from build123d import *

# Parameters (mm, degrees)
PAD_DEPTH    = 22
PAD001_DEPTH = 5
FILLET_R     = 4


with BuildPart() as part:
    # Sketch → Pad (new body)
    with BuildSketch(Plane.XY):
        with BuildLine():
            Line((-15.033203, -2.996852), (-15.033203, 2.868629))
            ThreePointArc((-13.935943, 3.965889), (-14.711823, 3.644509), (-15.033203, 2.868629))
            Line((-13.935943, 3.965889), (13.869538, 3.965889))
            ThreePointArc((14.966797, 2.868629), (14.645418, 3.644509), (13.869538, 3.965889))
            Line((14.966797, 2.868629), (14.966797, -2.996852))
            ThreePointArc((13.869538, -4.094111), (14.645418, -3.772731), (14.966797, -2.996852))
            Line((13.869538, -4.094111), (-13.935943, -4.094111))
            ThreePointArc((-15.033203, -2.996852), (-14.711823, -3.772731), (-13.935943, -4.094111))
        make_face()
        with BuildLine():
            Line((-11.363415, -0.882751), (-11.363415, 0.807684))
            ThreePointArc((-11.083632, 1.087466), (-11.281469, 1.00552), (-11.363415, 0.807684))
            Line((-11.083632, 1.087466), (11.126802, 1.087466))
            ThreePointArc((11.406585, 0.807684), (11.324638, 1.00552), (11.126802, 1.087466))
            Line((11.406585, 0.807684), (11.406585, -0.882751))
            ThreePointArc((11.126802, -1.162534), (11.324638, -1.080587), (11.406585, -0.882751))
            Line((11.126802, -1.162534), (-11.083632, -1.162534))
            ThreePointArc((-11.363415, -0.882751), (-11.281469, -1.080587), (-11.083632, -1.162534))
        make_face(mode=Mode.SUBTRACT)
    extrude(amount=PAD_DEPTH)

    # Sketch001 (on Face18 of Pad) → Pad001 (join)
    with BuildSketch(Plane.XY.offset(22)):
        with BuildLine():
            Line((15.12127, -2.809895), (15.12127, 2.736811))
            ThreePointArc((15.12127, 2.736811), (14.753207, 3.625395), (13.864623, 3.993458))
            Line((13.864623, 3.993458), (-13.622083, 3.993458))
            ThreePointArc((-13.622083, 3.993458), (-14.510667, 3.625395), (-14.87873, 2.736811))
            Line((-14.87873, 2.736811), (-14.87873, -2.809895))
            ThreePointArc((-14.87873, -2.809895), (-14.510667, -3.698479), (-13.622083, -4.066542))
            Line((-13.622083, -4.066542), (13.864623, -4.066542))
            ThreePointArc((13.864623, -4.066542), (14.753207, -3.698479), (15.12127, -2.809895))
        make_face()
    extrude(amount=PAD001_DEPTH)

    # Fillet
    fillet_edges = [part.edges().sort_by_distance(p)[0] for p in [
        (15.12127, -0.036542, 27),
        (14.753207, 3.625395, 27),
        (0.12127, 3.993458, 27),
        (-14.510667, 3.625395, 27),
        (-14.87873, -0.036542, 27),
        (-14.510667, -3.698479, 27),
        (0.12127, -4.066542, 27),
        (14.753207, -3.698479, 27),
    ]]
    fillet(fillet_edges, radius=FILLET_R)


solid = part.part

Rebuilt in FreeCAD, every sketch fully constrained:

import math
import FreeCAD as App
import Part
import Sketcher
from FreeCAD import Vector
Q = App.Units.Quantity


def edges_at(feature, points):
    """Names of the edges that pass closest to the given points."""
    edges = feature.Shape.Edges
    near = lambda p: min(range(len(edges)), key=lambda i: edges[i].distToShape(Part.Vertex(*p))[0])
    return sorted({f"Edge{near(p) + 1}" for p in points})

doc = App.newDocument("Part")
body = doc.addObject("PartDesign::Body", "Body")

# Sketch on XY plane
sketch1 = body.newObject("Sketcher::SketchObject", "Sketch")
sketch1.AttachmentSupport = (doc.getObject("XY_Plane"), [""])
sketch1.MapMode = "FlatFace"
sketch1.addGeometry(Part.LineSegment(Vector(-15.033203, 2.868629, 0), Vector(-15.033203, -2.996852, 0)), False)
sketch1.addGeometry(Part.ArcOfCircle(Part.Circle(Vector(-13.935943, -2.996851, 0), Vector(0, 0, 1), 1.09726), math.radians(-179.99995), math.radians(-89.999998)), False)
sketch1.addGeometry(Part.LineSegment(Vector(-13.935943, -4.094111, 0), Vector(13.869538, -4.094111, 0)), False)
sketch1.addGeometry(Part.ArcOfCircle(Part.Circle(Vector(13.869539, -2.996853, 0), Vector(0, 0, 1), 1.097258), math.radians(-90.000039), math.radians(0.000039)), False)
sketch1.addGeometry(Part.LineSegment(Vector(14.966797, -2.996852, 0), Vector(14.966797, 2.868629, 0)), False)
sketch1.addGeometry(Part.ArcOfCircle(Part.Circle(Vector(13.869539, 2.868631, 0), Vector(0, 0, 1), 1.097258), math.radians(-0.000091), math.radians(90.000039)), False)
sketch1.addGeometry(Part.LineSegment(Vector(13.869538, 3.965889, 0), Vector(-13.935943, 3.965889, 0)), False)
sketch1.addGeometry(Part.ArcOfCircle(Part.Circle(Vector(-13.935943, 2.868629, 0), Vector(0, 0, 1), 1.09726), math.radians(89.999998), math.radians(180.000002)), False)
sketch1.addGeometry(Part.LineSegment(Vector(-11.363415, -0.882751, 0), Vector(-11.363415, 0.807684, 0)), False)
sketch1.addGeometry(Part.ArcOfCircle(Part.Circle(Vector(-11.083634, 0.807685, 0), Vector(0, 0, 1), 0.279781), math.radians(89.99962), math.radians(180.000175)), False)
sketch1.addGeometry(Part.LineSegment(Vector(-11.083632, 1.087466, 0), Vector(11.126802, 1.087466, 0)), False)
sketch1.addGeometry(Part.ArcOfCircle(Part.Circle(Vector(11.126802, 0.807683, 0), Vector(0, 0, 1), 0.279783), math.radians(0.000174), math.radians(90.00003)), False)
sketch1.addGeometry(Part.LineSegment(Vector(11.406585, 0.807684, 0), Vector(11.406585, -0.882751, 0)), False)
sketch1.addGeometry(Part.ArcOfCircle(Part.Circle(Vector(11.1268, -0.882749, 0), Vector(0, 0, 1), 0.279785), math.radians(-89.999681), math.radians(-0.000319)), False)
sketch1.addGeometry(Part.LineSegment(Vector(11.126802, -1.162534, 0), Vector(-11.083632, -1.162534, 0)), False)
sketch1.addGeometry(Part.ArcOfCircle(Part.Circle(Vector(-11.083632, -0.882751, 0), Vector(0, 0, 1), 0.279783), math.radians(179.99997), math.radians(270.00003)), False)
sketch1.addConstraint(Sketcher.Constraint("Tangent", 0, 2, 1, 1))
sketch1.addConstraint(Sketcher.Constraint("Tangent", 1, 2, 2, 1))
sketch1.addConstraint(Sketcher.Constraint("Tangent", 2, 2, 3, 1))
sketch1.addConstraint(Sketcher.Constraint("Tangent", 3, 2, 4, 1))
sketch1.addConstraint(Sketcher.Constraint("Tangent", 4, 2, 5, 1))
sketch1.addConstraint(Sketcher.Constraint("Tangent", 5, 2, 6, 1))
sketch1.addConstraint(Sketcher.Constraint("Tangent", 6, 2, 7, 1))
sketch1.addConstraint(Sketcher.Constraint("Tangent", 7, 2, 0, 1))
sketch1.addConstraint(Sketcher.Constraint("Coincident", 8, 2, 9, 2))
sketch1.addConstraint(Sketcher.Constraint("Coincident", 9, 1, 10, 1))
sketch1.addConstraint(Sketcher.Constraint("Tangent", 10, 2, 11, 2))
sketch1.addConstraint(Sketcher.Constraint("Coincident", 11, 1, 12, 1))
sketch1.addConstraint(Sketcher.Constraint("Coincident", 12, 2, 13, 2))
sketch1.addConstraint(Sketcher.Constraint("Coincident", 13, 1, 14, 1))
sketch1.addConstraint(Sketcher.Constraint("Tangent", 14, 2, 15, 2))
sketch1.addConstraint(Sketcher.Constraint("Tangent", 15, 1, 8, 1))
sketch1.addConstraint(Sketcher.Constraint("Vertical", 0))
sketch1.addConstraint(Sketcher.Constraint("Horizontal", 2))
sketch1.addConstraint(Sketcher.Constraint("Vertical", 4))
sketch1.addConstraint(Sketcher.Constraint("Horizontal", 6))
sketch1.addConstraint(Sketcher.Constraint("Vertical", 8))
sketch1.addConstraint(Sketcher.Constraint("Horizontal", 10))
sketch1.addConstraint(Sketcher.Constraint("Vertical", 12))
sketch1.addConstraint(Sketcher.Constraint("Horizontal", 14))
sketch1.addConstraint(Sketcher.Constraint("Equal", 1, 3))
sketch1.addConstraint(Sketcher.Constraint("Equal", 3, 5))
sketch1.addConstraint(Sketcher.Constraint("Equal", 5, 7))
sketch1.addConstraint(Sketcher.Constraint("Equal", 9, 11))
sketch1.addConstraint(Sketcher.Constraint("Equal", 11, 13))
sketch1.addConstraint(Sketcher.Constraint("Equal", 13, 15))
sketch1.addConstraint(Sketcher.Constraint("Horizontal", 11, 3, 8, 2))
sketch1.addConstraint(Sketcher.Constraint("Horizontal", 8, 2, 11, 1))
sketch1.addConstraint(Sketcher.Constraint("Horizontal", 15, 3, 12, 2))
sketch1.addConstraint(Sketcher.Constraint("Vertical", 15, 3, 9, 1))
sketch1.addConstraint(Sketcher.Constraint("Vertical", 10, 2, 13, 1))
sketch1.addConstraint(Sketcher.Constraint("Radius", 1, Q("1.09726 mm")))
sketch1.addConstraint(Sketcher.Constraint("Radius", 9, Q("0.279781 mm")))
sketch1.addConstraint(Sketcher.Constraint("DistanceY", 13, 1, 10, 2, Q("2.25 mm")))
sketch1.addConstraint(Sketcher.Constraint("DistanceX", 2, 1, 2, 2, Q("27.805481 mm")))
sketch1.addConstraint(Sketcher.Constraint("DistanceY", 0, 2, 0, 1, Q("5.865481 mm")))
sketch1.addConstraint(Sketcher.Constraint("DistanceX", -1, 1, 13, 3, Q("11.1268 mm")))
sketch1.addConstraint(Sketcher.Constraint("DistanceY", 1, 3, 13, 3, Q("2.114102 mm")))
sketch1.addConstraint(Sketcher.Constraint("DistanceX", 10, 1, 10, 2, Q("22.210434 mm")))
sketch1.addConstraint(Sketcher.Constraint("DistanceY", 1, 3, -1, 1, Q("2.996851 mm")))
sketch1.addConstraint(Sketcher.Constraint("DistanceX", -1, 1, 3, 3, Q("13.869539 mm")))
pad1 = body.newObject("PartDesign::Pad", "Pad")
pad1.Profile = sketch1
pad1.Length = 22

# Sketch on XY plane
sketch2 = body.newObject("Sketcher::SketchObject", "Sketch001")
sketch2.AttachmentSupport = (doc.getObject("XY_Plane"), [""])
sketch2.MapMode = "FlatFace"
sketch2.AttachmentOffset = App.Placement(Vector(0, 0, 22), App.Rotation())
sketch2.addGeometry(Part.LineSegment(Vector(15.12127, -2.809895, 0), Vector(15.12127, 2.736811, 0)), False)
sketch2.addGeometry(Part.ArcOfCircle(Part.Circle(Vector(13.864624, 2.736812, 0), Vector(0, 0, 1), 1.256646), math.radians(-0.00006), math.radians(90.00006)), False)
sketch2.addGeometry(Part.LineSegment(Vector(13.864623, 3.993458, 0), Vector(-13.622083, 3.993458, 0)), False)
sketch2.addGeometry(Part.ArcOfCircle(Part.Circle(Vector(-13.622084, 2.736812, 0), Vector(0, 0, 1), 1.256646), math.radians(89.99994), math.radians(180.00006)), False)
sketch2.addGeometry(Part.LineSegment(Vector(-14.87873, 2.736811, 0), Vector(-14.87873, -2.809895, 0)), False)
sketch2.addGeometry(Part.ArcOfCircle(Part.Circle(Vector(-13.622084, -2.809896, 0), Vector(0, 0, 1), 1.256646), math.radians(179.99994), math.radians(270.00006)), False)
sketch2.addGeometry(Part.LineSegment(Vector(-13.622083, -4.066542, 0), Vector(13.864623, -4.066542, 0)), False)
sketch2.addGeometry(Part.ArcOfCircle(Part.Circle(Vector(13.864624, -2.809896, 0), Vector(0, 0, 1), 1.256646), math.radians(-90.00006), math.radians(0.00006)), False)
sketch2.addConstraint(Sketcher.Constraint("Tangent", 0, 2, 1, 1))
sketch2.addConstraint(Sketcher.Constraint("Tangent", 1, 2, 2, 1))
sketch2.addConstraint(Sketcher.Constraint("Tangent", 2, 2, 3, 1))
sketch2.addConstraint(Sketcher.Constraint("Tangent", 3, 2, 4, 1))
sketch2.addConstraint(Sketcher.Constraint("Tangent", 4, 2, 5, 1))
sketch2.addConstraint(Sketcher.Constraint("Tangent", 5, 2, 6, 1))
sketch2.addConstraint(Sketcher.Constraint("Tangent", 6, 2, 7, 1))
sketch2.addConstraint(Sketcher.Constraint("Tangent", 7, 2, 0, 1))
sketch2.addConstraint(Sketcher.Constraint("Vertical", 0))
sketch2.addConstraint(Sketcher.Constraint("Horizontal", 2))
sketch2.addConstraint(Sketcher.Constraint("Vertical", 4))
sketch2.addConstraint(Sketcher.Constraint("Horizontal", 6))
sketch2.addConstraint(Sketcher.Constraint("Equal", 1, 3))
sketch2.addConstraint(Sketcher.Constraint("Equal", 3, 5))
sketch2.addConstraint(Sketcher.Constraint("Equal", 5, 7))
sketch2.addConstraint(Sketcher.Constraint("DistanceY", 5, 2, 2, 2, Q("8.06 mm")))
sketch2.addConstraint(Sketcher.Constraint("Radius", 1, Q("1.256646 mm")))
sketch2.addConstraint(Sketcher.Constraint("DistanceX", 2, 2, 2, 1, Q("27.486706 mm")))
sketch2.addConstraint(Sketcher.Constraint("DistanceX", -1, 1, 0, 2, Q("15.12127 mm")))
sketch2.addConstraint(Sketcher.Constraint("DistanceY", -1, 1, 0, 2, Q("2.736811 mm")))
pad2 = body.newObject("PartDesign::Pad", "Pad001")
pad2.Profile = sketch2
pad2.Length = 5
doc.recompute()

fillet = body.newObject("PartDesign::Fillet", "Fillet")
fillet.Base = (pad2, edges_at(pad2, [
    (15.121, -0.037, 27),
    (14.753, 3.625, 27),
    (0.121, 3.993, 27),
    (-14.511, 3.625, 27),
    (-14.879, -0.037, 27),
    (-14.511, -3.698, 27),
    (0.121, -4.067, 27),
    (14.753, -3.698, 27),
]))
fillet.Radius = 4

doc.recompute()
